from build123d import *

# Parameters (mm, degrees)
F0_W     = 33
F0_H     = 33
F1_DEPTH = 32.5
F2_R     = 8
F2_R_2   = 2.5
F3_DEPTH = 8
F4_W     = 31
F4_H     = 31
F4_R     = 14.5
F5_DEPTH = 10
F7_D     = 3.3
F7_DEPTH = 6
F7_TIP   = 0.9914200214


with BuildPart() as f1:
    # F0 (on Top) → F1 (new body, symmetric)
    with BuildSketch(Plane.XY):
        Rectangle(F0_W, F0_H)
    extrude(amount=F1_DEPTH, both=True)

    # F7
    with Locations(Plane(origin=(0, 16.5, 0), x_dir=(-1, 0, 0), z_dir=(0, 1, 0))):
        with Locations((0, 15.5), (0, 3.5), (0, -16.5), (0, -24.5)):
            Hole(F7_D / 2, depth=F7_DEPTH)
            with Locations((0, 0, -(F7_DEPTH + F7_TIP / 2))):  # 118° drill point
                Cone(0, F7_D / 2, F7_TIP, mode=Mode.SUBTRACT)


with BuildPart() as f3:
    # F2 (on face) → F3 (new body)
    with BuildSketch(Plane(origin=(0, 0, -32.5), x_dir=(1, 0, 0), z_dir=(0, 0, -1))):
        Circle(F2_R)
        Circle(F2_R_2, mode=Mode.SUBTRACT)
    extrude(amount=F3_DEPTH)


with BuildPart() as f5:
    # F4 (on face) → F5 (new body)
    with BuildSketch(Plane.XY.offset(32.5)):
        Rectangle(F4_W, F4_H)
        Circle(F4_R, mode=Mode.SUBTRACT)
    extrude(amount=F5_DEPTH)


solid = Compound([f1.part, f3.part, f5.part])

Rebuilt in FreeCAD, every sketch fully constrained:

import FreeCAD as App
import Part
import Sketcher
Q = App.Units.Quantity


def add_polygon(sketch, points):
    """Adds a closed chain of lines whose ends are joined by coincident constraints."""
    first, n = sketch.GeometryCount, len(points)
    for a, b in zip(points, points[1:] + points[:1]):
        sketch.addGeometry(Part.LineSegment(App.Vector(*a, 0), App.Vector(*b, 0)), False)
    for i in range(n):
        sketch.addConstraint(Sketcher.Constraint("Coincident", first + i, 2, first + (i + 1) % n, 1))

doc = App.newDocument("Part")
params = doc.addObject("Spreadsheet::Sheet", "Params")
for row, (alias, value) in enumerate([
    ("sketch1_width", "33 mm"),
    ("pad1_length", "65 mm"),
    ("sketch2_diameter", "3.3 mm"),
    ("hole_diameter", "3.3 mm"),
    ("hole_depth", "6 mm"),
    ("sketch3_diameter", "16 mm"),
    ("sketch3_diameter2", "5 mm"),
    ("pad2_length", "8 mm"),
    ("sketch4_diameter", "29 mm"),
    ("sketch4_width", "31 mm"),
    ("pad3_length", "10 mm"),
], start=1):
    params.set(f"A{row}", alias)
    params.set(f"B{row}", "=" + value)
    params.setAlias(f"B{row}", alias)

body = doc.addObject("PartDesign::Body", "Body")

# Sketch on XY plane
sketch1 = body.newObject("Sketcher::SketchObject", "Sketch")
sketch1.AttachmentSupport = (doc.getObject("XY_Plane"), [""])
sketch1.MapMode = "FlatFace"
add_polygon(sketch1, [(-16.5, 16.5), (-16.5, -16.5), (16.5, -16.5), (16.5, 16.5)])  # lines 0-3
sketch1.addConstraint(Sketcher.Constraint("Vertical", 0))
sketch1.addConstraint(Sketcher.Constraint("Horizontal", 1))
sketch1.addConstraint(Sketcher.Constraint("Vertical", 2))
sketch1.addConstraint(Sketcher.Constraint("Horizontal", 3))
sketch1.addConstraint(Sketcher.Constraint("Symmetric", 0, 2, 2, 2, -1, 1))
sketch1.addConstraint(Sketcher.Constraint("Equal", 3, 0))
sketch1.addConstraint(Sketcher.Constraint("DistanceX", 1, 1, 1, 2, Q("33 mm")))
sketch1.setExpression("Constraints[10]", "Params.sketch1_width")
pad1 = body.newObject("PartDesign::Pad", "Pad")
pad1.Profile = sketch1
pad1.setExpression("Length", "Params.pad1_length")
pad1.Midplane = True

# Sketch on XZ plane
sketch2 = body.newObject("Sketcher::SketchObject", "Sketch001")
sketch2.AttachmentSupport = (doc.getObject("XZ_Plane"), [""])
sketch2.MapMode = "FlatFace"
sketch2.AttachmentOffset = App.Placement(App.Vector(0, 0, -16.5), App.Rotation())
sketch2.addGeometry(Part.Circle(App.Vector(0, 15.5, 0), App.Vector(0, 0, 1), 1.65), False)
sketch2.addGeometry(Part.Circle(App.Vector(0, 3.5, 0), App.Vector(0, 0, 1), 1.65), False)
sketch2.addGeometry(Part.Circle(App.Vector(0, -16.5, 0), App.Vector(0, 0, 1), 1.65), False)
sketch2.addGeometry(Part.Circle(App.Vector(0, -24.5, 0), App.Vector(0, 0, 1), 1.65), False)
sketch2.addConstraint(Sketcher.Constraint("Equal", 0, 1))
sketch2.addConstraint(Sketcher.Constraint("Equal", 1, 2))
sketch2.addConstraint(Sketcher.Constraint("Equal", 2, 3))
sketch2.addConstraint(Sketcher.Constraint("PointOnObject", 0, 3, -2))
sketch2.addConstraint(Sketcher.Constraint("PointOnObject", 1, 3, -2))
sketch2.addConstraint(Sketcher.Constraint("PointOnObject", 2, 3, -2))
sketch2.addConstraint(Sketcher.Constraint("PointOnObject", 3, 3, -2))
sketch2.addConstraint(Sketcher.Constraint("Diameter", 0, Q("3.3 mm")))
sketch2.addConstraint(Sketcher.Constraint("DistanceY", 1, 3, 0, 3, Q("12 mm")))
sketch2.addConstraint(Sketcher.Constraint("DistanceY", 2, 3, 1, 3, Q("20 mm")))
sketch2.addConstraint(Sketcher.Constraint("DistanceY", 3, 3, 2, 3, Q("8 mm")))
sketch2.addConstraint(Sketcher.Constraint("DistanceY", -1, 1, 0, 3, Q("15.5 mm")))
sketch2.setExpression("Constraints[7]", "Params.sketch2_diameter")
doc.recompute()
hole = body.newObject("PartDesign::Hole", "Hole")
hole.Profile = sketch2
hole.ThreadType = "None"
hole.setExpression("Diameter", "Params.hole_diameter")
hole.DepthType = "Dimension"
hole.setExpression("Depth", "Params.hole_depth")
hole.DrillPoint = "Angled"
hole.DrillPointAngle = 118
hole.Reversed = True
body2 = doc.addObject("PartDesign::Body", "Body001")

# Sketch on XY plane
sketch3 = body2.newObject("Sketcher::SketchObject", "Sketch002")
sketch3.AttachmentSupport = (doc.getObject("XY_Plane001"), [""])
sketch3.MapMode = "FlatFace"
sketch3.AttachmentOffset = App.Placement(App.Vector(0, 0, -32.5), App.Rotation())
sketch3.addGeometry(Part.Circle(App.Vector(0, 0, 0), App.Vector(0, 0, 1), 8), False)
sketch3.addGeometry(Part.Circle(App.Vector(0, 0, 0), App.Vector(0, 0, 1), 2.5), False)
sketch3.addConstraint(Sketcher.Constraint("Coincident", 0, 3, -1, 1))
sketch3.addConstraint(Sketcher.Constraint("Coincident", 1, 3, -1, 1))
sketch3.addConstraint(Sketcher.Constraint("Diameter", 0, Q("16 mm")))
sketch3.addConstraint(Sketcher.Constraint("Diameter", 1, Q("5 mm")))
sketch3.setExpression("Constraints[2]", "Params.sketch3_diameter")
sketch3.setExpression("Constraints[3]", "Params.sketch3_diameter2")
pad2 = body2.newObject("PartDesign::Pad", "Pad001")
pad2.Profile = sketch3
pad2.setExpression("Length", "Params.pad2_length")
pad2.Reversed = True
body3 = doc.addObject("PartDesign::Body", "Body002")

# Sketch on XY plane
sketch4 = body3.newObject("Sketcher::SketchObject", "Sketch003")
sketch4.AttachmentSupport = (doc.getObject("XY_Plane002"), [""])
sketch4.MapMode = "FlatFace"
sketch4.AttachmentOffset = App.Placement(App.Vector(0, 0, 32.5), App.Rotation())
add_polygon(sketch4, [(-15.5, 15.5), (-15.5, -15.5), (15.5, -15.5), (15.5, 15.5)])  # lines 0-3
sketch4.addGeometry(Part.Circle(App.Vector(0, 0, 0), App.Vector(0, 0, 1), 14.5), False)  # 4
sketch4.addConstraint(Sketcher.Constraint("Vertical", 0))
sketch4.addConstraint(Sketcher.Constraint("Horizontal", 1))
sketch4.addConstraint(Sketcher.Constraint("Vertical", 2))
sketch4.addConstraint(Sketcher.Constraint("Horizontal", 3))
sketch4.addConstraint(Sketcher.Constraint("Coincident", 4, 3, -1, 1))
sketch4.addConstraint(Sketcher.Constraint("Symmetric", 0, 2, 2, 2, -1, 1))
sketch4.addConstraint(Sketcher.Constraint("Equal", 3, 0))
sketch4.addConstraint(Sketcher.Constraint("Diameter", 4, Q("29 mm")))
sketch4.addConstraint(Sketcher.Constraint("DistanceX", 1, 1, 1, 2, Q("31 mm")))
sketch4.setExpression("Constraints[11]", "Params.sketch4_diameter")
sketch4.setExpression("Constraints[12]", "Params.sketch4_width")
pad3 = body3.newObject("PartDesign::Pad", "Pad002")
pad3.Profile = sketch4
pad3.setExpression("Length", "Params.pad3_length")

doc.recompute()
